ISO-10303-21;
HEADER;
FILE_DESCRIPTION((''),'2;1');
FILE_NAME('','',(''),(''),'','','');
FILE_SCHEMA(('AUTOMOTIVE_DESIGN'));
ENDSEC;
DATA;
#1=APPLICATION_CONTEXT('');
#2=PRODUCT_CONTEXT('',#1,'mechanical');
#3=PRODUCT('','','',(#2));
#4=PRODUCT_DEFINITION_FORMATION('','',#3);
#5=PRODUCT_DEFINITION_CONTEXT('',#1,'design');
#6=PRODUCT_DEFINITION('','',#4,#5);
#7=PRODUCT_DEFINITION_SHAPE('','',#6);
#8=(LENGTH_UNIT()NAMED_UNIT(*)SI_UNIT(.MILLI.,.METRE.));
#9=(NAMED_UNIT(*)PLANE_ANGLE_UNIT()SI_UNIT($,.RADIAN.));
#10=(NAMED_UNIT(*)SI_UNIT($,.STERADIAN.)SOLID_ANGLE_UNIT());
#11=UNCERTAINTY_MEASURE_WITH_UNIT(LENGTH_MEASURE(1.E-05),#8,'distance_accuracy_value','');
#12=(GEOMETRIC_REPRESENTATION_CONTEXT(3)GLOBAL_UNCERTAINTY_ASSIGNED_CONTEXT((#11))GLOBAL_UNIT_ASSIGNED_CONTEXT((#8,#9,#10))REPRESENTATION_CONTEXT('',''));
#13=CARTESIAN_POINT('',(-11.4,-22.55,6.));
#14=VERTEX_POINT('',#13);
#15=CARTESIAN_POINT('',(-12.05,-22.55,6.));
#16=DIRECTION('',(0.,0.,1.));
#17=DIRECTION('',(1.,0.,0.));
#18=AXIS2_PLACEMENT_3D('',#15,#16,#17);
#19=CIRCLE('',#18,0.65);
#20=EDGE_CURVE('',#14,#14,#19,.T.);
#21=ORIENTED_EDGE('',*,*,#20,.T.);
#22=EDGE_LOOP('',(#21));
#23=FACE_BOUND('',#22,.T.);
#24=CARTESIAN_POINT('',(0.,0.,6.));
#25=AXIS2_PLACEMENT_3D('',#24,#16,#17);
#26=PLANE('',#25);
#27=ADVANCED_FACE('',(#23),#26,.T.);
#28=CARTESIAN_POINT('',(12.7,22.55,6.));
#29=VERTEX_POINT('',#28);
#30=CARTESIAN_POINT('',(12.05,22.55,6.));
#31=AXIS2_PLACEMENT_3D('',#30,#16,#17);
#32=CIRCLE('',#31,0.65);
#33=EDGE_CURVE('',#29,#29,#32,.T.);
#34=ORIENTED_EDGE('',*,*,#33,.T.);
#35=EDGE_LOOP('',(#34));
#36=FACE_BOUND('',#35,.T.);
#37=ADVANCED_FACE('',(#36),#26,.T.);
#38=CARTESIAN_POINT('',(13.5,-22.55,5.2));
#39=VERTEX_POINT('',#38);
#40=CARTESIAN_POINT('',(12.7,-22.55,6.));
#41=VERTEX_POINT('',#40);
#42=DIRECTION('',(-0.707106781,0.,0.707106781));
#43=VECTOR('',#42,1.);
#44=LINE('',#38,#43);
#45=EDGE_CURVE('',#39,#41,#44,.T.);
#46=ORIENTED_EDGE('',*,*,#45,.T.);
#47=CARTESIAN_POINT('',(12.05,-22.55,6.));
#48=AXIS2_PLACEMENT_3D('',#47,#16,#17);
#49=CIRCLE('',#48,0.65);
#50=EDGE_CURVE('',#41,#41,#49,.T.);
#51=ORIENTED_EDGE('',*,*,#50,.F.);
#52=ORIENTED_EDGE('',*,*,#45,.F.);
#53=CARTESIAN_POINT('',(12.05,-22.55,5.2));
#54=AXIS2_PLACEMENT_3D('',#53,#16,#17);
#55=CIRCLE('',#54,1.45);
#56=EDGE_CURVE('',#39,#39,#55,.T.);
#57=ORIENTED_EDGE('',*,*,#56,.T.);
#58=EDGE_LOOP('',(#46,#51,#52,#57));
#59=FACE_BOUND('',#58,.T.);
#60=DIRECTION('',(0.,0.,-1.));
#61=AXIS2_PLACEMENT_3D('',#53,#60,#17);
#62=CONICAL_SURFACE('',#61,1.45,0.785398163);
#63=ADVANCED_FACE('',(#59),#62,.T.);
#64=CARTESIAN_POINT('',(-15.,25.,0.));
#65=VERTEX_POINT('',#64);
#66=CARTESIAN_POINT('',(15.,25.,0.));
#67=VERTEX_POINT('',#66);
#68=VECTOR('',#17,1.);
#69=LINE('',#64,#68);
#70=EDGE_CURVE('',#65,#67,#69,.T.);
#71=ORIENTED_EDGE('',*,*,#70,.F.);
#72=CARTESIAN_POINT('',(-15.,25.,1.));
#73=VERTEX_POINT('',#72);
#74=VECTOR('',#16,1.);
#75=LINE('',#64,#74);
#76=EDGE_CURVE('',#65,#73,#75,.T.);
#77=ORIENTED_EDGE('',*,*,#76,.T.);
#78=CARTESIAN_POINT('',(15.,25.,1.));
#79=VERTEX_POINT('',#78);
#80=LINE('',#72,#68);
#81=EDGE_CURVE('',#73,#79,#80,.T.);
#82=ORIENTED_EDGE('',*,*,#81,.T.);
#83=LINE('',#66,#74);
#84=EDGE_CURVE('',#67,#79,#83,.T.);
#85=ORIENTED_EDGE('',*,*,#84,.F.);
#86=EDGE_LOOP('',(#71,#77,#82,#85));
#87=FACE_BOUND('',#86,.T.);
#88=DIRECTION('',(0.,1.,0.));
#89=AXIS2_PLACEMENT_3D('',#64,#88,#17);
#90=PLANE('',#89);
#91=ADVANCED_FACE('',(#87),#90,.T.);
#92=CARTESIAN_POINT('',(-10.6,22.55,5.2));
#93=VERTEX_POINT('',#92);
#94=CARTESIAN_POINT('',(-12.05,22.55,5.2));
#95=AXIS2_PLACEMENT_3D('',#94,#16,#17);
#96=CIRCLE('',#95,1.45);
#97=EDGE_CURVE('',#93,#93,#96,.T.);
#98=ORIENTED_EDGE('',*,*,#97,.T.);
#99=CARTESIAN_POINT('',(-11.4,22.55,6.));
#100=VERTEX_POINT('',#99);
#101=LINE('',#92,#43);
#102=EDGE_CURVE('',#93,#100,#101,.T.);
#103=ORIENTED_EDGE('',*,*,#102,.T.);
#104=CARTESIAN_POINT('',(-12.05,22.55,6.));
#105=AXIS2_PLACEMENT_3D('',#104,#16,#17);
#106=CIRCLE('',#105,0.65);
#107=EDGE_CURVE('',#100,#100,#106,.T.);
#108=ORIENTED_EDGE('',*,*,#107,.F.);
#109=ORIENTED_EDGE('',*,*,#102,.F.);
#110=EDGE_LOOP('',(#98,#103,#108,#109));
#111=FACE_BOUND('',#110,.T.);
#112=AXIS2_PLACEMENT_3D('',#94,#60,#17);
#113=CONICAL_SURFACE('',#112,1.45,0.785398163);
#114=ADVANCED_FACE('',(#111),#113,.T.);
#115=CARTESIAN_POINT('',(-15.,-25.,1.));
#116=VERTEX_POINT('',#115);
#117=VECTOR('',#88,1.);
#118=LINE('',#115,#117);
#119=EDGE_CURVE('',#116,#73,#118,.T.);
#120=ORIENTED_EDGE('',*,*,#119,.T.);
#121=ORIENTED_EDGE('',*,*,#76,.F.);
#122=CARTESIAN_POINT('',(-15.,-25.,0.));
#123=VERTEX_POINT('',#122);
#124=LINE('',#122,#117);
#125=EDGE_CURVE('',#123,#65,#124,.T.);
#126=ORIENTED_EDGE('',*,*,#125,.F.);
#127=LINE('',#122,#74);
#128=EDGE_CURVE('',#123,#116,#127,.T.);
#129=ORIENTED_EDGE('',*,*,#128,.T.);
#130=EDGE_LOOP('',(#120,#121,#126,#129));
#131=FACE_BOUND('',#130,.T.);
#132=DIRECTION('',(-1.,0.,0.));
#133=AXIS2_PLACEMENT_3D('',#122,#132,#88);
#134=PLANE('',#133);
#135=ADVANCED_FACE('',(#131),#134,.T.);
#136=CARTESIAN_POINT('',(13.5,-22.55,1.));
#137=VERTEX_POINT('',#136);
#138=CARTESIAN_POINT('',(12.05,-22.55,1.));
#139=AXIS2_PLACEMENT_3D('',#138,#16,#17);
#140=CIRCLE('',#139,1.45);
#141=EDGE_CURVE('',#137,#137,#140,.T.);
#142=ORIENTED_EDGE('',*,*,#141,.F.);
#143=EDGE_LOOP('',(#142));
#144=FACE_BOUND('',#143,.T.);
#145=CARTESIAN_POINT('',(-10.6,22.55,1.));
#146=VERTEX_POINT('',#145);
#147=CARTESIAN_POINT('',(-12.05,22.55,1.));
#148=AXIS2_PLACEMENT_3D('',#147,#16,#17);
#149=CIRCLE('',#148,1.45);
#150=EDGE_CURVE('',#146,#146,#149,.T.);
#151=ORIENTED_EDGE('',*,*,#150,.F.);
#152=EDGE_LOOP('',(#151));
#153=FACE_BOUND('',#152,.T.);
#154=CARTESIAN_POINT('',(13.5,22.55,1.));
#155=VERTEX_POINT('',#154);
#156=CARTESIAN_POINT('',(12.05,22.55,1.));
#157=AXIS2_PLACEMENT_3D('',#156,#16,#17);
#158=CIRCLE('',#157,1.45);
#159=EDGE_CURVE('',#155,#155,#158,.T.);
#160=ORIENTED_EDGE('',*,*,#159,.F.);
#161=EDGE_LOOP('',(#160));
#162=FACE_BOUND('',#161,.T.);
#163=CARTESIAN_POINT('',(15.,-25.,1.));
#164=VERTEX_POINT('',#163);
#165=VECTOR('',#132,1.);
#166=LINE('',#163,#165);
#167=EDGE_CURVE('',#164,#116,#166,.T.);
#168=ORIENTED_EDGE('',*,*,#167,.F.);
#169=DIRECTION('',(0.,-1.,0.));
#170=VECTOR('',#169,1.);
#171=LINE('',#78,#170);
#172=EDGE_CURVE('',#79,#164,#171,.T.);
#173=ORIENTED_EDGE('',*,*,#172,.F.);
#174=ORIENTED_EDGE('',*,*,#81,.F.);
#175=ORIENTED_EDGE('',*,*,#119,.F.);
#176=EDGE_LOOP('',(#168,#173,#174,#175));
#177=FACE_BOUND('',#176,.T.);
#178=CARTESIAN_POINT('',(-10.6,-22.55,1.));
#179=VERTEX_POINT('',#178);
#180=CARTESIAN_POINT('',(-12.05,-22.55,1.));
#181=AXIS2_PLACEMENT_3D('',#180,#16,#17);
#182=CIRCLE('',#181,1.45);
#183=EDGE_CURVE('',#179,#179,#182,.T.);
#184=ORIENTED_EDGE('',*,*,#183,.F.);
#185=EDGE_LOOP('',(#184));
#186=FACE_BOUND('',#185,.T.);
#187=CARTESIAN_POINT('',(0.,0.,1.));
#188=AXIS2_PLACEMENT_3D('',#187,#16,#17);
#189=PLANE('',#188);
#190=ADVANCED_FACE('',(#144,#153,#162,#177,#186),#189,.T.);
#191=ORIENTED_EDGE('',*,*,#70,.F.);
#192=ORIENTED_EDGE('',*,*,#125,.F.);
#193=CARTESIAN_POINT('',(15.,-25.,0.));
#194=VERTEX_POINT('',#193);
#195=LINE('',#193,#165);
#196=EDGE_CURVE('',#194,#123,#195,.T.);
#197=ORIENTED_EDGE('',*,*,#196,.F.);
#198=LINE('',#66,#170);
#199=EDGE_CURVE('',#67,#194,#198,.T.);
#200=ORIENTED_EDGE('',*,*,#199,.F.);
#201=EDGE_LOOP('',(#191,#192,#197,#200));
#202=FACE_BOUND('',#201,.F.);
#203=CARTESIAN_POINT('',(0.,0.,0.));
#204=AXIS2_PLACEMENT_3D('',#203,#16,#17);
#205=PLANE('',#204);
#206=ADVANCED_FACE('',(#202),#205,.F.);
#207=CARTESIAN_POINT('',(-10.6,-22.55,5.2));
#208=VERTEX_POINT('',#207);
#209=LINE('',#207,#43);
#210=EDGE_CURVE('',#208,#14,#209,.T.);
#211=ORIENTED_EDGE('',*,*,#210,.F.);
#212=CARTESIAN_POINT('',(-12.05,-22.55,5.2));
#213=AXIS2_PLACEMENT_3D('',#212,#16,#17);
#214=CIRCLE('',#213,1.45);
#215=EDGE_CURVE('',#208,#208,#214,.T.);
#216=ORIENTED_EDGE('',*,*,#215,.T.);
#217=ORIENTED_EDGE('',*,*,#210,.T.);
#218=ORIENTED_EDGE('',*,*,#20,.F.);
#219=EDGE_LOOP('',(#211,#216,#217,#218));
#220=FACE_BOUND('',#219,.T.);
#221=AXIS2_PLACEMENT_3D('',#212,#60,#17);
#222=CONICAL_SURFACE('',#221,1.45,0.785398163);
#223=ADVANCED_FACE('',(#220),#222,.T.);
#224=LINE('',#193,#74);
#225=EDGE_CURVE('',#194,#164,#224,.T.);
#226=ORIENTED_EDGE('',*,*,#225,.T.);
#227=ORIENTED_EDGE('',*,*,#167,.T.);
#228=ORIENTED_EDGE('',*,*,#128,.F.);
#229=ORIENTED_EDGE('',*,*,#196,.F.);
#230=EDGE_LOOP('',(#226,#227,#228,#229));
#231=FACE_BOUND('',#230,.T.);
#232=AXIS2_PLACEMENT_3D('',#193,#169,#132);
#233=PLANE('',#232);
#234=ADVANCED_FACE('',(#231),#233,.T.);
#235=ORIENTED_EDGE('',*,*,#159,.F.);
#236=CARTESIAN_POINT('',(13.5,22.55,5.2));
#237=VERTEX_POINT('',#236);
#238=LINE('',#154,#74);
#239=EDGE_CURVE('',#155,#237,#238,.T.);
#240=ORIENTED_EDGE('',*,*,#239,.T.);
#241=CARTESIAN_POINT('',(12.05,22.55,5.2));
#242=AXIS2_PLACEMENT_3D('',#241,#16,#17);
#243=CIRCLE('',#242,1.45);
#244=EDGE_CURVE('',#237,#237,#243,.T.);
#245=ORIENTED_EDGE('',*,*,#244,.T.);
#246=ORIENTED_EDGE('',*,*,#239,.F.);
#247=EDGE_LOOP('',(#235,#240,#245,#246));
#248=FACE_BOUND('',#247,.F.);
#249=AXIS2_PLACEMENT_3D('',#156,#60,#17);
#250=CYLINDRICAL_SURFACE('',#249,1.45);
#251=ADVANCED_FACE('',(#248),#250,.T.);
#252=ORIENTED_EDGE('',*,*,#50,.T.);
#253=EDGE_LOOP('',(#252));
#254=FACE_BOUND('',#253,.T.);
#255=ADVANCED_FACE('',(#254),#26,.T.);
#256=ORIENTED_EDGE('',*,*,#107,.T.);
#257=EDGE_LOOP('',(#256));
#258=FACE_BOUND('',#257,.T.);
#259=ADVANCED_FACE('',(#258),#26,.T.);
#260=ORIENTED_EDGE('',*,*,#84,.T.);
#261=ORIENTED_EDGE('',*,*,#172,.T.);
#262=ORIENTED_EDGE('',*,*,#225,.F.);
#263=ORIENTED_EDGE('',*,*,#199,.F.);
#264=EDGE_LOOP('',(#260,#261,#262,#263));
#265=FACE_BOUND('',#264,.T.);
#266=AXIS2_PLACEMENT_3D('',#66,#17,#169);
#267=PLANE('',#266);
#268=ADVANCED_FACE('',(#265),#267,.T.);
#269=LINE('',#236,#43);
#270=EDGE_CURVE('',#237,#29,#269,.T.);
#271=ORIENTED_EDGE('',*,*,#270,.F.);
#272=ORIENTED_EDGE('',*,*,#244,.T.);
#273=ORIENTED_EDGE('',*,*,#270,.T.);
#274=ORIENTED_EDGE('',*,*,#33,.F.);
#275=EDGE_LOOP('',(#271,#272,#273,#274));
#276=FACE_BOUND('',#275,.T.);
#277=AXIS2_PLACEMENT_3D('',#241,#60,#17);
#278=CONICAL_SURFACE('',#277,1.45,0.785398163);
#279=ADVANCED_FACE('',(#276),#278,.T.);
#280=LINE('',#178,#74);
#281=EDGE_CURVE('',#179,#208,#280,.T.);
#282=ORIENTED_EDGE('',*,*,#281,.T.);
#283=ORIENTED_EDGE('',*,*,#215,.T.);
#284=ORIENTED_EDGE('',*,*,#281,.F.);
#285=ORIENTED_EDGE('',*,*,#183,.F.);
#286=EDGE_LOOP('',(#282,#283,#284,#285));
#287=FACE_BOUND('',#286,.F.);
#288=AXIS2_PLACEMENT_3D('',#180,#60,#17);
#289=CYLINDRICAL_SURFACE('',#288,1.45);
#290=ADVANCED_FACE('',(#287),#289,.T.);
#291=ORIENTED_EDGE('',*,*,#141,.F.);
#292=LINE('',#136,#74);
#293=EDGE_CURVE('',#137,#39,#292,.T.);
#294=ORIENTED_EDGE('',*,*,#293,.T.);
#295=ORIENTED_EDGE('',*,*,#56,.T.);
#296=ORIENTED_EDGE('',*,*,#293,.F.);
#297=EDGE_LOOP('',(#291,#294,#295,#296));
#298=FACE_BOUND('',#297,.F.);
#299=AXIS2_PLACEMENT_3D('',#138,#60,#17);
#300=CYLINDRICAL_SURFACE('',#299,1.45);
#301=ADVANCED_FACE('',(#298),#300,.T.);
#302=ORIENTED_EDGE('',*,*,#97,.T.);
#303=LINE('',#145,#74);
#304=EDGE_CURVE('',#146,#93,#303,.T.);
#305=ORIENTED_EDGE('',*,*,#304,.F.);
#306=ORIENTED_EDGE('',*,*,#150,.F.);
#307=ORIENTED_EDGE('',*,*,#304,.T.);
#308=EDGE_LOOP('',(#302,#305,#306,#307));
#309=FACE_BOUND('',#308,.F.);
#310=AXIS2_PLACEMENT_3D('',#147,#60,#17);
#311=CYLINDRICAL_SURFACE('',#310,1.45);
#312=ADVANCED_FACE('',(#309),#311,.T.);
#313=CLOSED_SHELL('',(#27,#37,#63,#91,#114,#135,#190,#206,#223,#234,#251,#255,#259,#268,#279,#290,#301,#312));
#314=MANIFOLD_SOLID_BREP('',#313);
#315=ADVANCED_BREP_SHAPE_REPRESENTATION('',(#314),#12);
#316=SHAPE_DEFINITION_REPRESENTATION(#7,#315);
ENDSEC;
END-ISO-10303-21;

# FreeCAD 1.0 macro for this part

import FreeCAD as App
import Part
import Sketcher
from FreeCAD import Vector
Q = App.Units.Quantity


def edges_at(feature, points):
    """Names of the edges that pass closest to the given points."""
    edges = feature.Shape.Edges
    near = lambda p: min(range(len(edges)), key=lambda i: edges[i].distToShape(Part.Vertex(*p))[0])
    return sorted({f"Edge{near(p) + 1}" for p in points})


def add_polygon(sketch, points):
    """Adds a closed chain of lines whose ends are joined by coincident constraints."""
    first, n = sketch.GeometryCount, len(points)
    for a, b in zip(points, points[1:] + points[:1]):
        sketch.addGeometry(Part.LineSegment(App.Vector(*a, 0), App.Vector(*b, 0)), False)
    for i in range(n):
        sketch.addConstraint(Sketcher.Constraint("Coincident", first + i, 2, first + (i + 1) % n, 1))

doc = App.newDocument("Part")
params = doc.addObject("Spreadsheet::Sheet", "Params")
for row, (alias, value) in enumerate([
    ("sketch1_diameter", "2.9 mm"),
    ("sketch1_width", "30 mm"),
    ("sketch1_height", "50 mm"),
    ("pad1_length", "1 mm"),
    ("sketch2_diameter", "2.9 mm"),
    ("pad2_length", "5 mm"),
    ("pad2_length2", "1 mm"),
    ("chamfer_size", "0.8 mm"),
], start=1):
    params.set(f"A{row}", alias)
    params.set(f"B{row}", "=" + value)
    params.setAlias(f"B{row}", alias)

body = doc.addObject("PartDesign::Body", "Body")

# Sketch on XY plane
sketch1 = body.newObject("Sketcher::SketchObject", "Sketch")
sketch1.AttachmentSupport = (doc.getObject("XY_Plane"), [""])
sketch1.MapMode = "FlatFace"
add_polygon(sketch1, [(-15, -25), (15, -25), (15, 25), (-15, 25)])  # lines 0-3
sketch1.addGeometry(Part.Circle(Vector(-12.1, -22.6, 0), Vector(0, 0, 1), 1.4), False)  # 4
sketch1.addGeometry(Part.Circle(Vector(12.1, -22.6, 0), Vector(0, 0, 1), 1.4), False)  # 5
sketch1.addGeometry(Part.Circle(Vector(-12.1, 22.6, 0), Vector(0, 0, 1), 1.4), False)  # 6
sketch1.addGeometry(Part.Circle(Vector(12.1, 22.6, 0), Vector(0, 0, 1), 1.4), False)  # 7
sketch1.addConstraint([
    Sketcher.Constraint("Horizontal", 0),
    Sketcher.Constraint("Vertical", 1),
    Sketcher.Constraint("Horizontal", 2),
    Sketcher.Constraint("Vertical", 3),
    Sketcher.Constraint("Equal", 4, 5),
    Sketcher.Constraint("Equal", 5, 6),
    Sketcher.Constraint("Equal", 6, 7),
    Sketcher.Constraint("Symmetric", 5, 3, 6, 3, -1, 1),
    Sketcher.Constraint("Symmetric", 4, 3, 7, 3, -1, 1),
    Sketcher.Constraint("Symmetric", 0, 2, 2, 2, -1, 1),
    Sketcher.Constraint("Symmetric", 4, 3, 5, 3, -2),
    Sketcher.Constraint("Diameter", 4, Q("2.9 mm")),
    Sketcher.Constraint("DistanceX", 0, 1, 0, 2, Q("30 mm")),
    Sketcher.Constraint("DistanceY", 1, 1, 1, 2, Q("50 mm")),
    Sketcher.Constraint("DistanceX", 4, 3, 5, 3, Q("24.1 mm")),
    Sketcher.Constraint("DistanceY", 4, 3, 6, 3, Q("45.1 mm")),
])
sketch1.setExpression("Constraints[15]", "Params.sketch1_diameter")
sketch1.setExpression("Constraints[16]", "Params.sketch1_width")
sketch1.setExpression("Constraints[17]", "Params.sketch1_height")
pad1 = body.newObject("PartDesign::Pad", "Pad")
pad1.Profile = sketch1
pad1.setExpression("Length", "Params.pad1_length")

# Sketch on XY plane
sketch2 = body.newObject("Sketcher::SketchObject", "Sketch001")
sketch2.AttachmentSupport = (doc.getObject("XY_Plane"), [""])
sketch2.MapMode = "FlatFace"
sketch2.AttachmentOffset = App.Placement(Vector(0, 0, 1), App.Rotation())
sketch2.addGeometry([
    Part.Circle(Vector(12.1, -22.6, 0), Vector(0, 0, 1), 1.4),
    Part.Circle(Vector(-12.1, -22.6, 0), Vector(0, 0, 1), 1.4),
    Part.Circle(Vector(-12.1, 22.6, 0), Vector(0, 0, 1), 1.4),
    Part.Circle(Vector(12.1, 22.6, 0), Vector(0, 0, 1), 1.4),
], False)
sketch2.addConstraint([
    Sketcher.Constraint("Equal", 0, 1),
    Sketcher.Constraint("Equal", 1, 2),
    Sketcher.Constraint("Equal", 2, 3),
    Sketcher.Constraint("Symmetric", 0, 3, 2, 3, -1, 1),
    Sketcher.Constraint("Symmetric", 1, 3, 3, 3, -1, 1),
    Sketcher.Constraint("Symmetric", 0, 3, 1, 3, -2),
    Sketcher.Constraint("Diameter", 0, Q("2.9 mm")),
    Sketcher.Constraint("DistanceX", 1, 3, 0, 3, Q("24.1 mm")),
    Sketcher.Constraint("DistanceY", 1, 3, 2, 3, Q("45.1 mm")),
])
sketch2.setExpression("Constraints[6]", "Params.sketch2_diameter")
pad2 = body.newObject("PartDesign::Pad", "Pad001")
pad2.Profile = sketch2
pad2.Type = "TwoLengths"
pad2.setExpression("Length", "Params.pad2_length")
pad2.setExpression("Length2", "Params.pad2_length2")
doc.recompute()

chamfer = body.newObject("PartDesign::Chamfer", "Chamfer")
chamfer.Base = (pad2, edges_at(pad2, [
    (-13.5, -22.55, 6),
    (-13.5, 22.55, 6),
    (10.6, 22.55, 6),
    (10.6, -22.55, 6),
]))
chamfer.setExpression("Size", "Params.chamfer_size")

doc.recompute()
